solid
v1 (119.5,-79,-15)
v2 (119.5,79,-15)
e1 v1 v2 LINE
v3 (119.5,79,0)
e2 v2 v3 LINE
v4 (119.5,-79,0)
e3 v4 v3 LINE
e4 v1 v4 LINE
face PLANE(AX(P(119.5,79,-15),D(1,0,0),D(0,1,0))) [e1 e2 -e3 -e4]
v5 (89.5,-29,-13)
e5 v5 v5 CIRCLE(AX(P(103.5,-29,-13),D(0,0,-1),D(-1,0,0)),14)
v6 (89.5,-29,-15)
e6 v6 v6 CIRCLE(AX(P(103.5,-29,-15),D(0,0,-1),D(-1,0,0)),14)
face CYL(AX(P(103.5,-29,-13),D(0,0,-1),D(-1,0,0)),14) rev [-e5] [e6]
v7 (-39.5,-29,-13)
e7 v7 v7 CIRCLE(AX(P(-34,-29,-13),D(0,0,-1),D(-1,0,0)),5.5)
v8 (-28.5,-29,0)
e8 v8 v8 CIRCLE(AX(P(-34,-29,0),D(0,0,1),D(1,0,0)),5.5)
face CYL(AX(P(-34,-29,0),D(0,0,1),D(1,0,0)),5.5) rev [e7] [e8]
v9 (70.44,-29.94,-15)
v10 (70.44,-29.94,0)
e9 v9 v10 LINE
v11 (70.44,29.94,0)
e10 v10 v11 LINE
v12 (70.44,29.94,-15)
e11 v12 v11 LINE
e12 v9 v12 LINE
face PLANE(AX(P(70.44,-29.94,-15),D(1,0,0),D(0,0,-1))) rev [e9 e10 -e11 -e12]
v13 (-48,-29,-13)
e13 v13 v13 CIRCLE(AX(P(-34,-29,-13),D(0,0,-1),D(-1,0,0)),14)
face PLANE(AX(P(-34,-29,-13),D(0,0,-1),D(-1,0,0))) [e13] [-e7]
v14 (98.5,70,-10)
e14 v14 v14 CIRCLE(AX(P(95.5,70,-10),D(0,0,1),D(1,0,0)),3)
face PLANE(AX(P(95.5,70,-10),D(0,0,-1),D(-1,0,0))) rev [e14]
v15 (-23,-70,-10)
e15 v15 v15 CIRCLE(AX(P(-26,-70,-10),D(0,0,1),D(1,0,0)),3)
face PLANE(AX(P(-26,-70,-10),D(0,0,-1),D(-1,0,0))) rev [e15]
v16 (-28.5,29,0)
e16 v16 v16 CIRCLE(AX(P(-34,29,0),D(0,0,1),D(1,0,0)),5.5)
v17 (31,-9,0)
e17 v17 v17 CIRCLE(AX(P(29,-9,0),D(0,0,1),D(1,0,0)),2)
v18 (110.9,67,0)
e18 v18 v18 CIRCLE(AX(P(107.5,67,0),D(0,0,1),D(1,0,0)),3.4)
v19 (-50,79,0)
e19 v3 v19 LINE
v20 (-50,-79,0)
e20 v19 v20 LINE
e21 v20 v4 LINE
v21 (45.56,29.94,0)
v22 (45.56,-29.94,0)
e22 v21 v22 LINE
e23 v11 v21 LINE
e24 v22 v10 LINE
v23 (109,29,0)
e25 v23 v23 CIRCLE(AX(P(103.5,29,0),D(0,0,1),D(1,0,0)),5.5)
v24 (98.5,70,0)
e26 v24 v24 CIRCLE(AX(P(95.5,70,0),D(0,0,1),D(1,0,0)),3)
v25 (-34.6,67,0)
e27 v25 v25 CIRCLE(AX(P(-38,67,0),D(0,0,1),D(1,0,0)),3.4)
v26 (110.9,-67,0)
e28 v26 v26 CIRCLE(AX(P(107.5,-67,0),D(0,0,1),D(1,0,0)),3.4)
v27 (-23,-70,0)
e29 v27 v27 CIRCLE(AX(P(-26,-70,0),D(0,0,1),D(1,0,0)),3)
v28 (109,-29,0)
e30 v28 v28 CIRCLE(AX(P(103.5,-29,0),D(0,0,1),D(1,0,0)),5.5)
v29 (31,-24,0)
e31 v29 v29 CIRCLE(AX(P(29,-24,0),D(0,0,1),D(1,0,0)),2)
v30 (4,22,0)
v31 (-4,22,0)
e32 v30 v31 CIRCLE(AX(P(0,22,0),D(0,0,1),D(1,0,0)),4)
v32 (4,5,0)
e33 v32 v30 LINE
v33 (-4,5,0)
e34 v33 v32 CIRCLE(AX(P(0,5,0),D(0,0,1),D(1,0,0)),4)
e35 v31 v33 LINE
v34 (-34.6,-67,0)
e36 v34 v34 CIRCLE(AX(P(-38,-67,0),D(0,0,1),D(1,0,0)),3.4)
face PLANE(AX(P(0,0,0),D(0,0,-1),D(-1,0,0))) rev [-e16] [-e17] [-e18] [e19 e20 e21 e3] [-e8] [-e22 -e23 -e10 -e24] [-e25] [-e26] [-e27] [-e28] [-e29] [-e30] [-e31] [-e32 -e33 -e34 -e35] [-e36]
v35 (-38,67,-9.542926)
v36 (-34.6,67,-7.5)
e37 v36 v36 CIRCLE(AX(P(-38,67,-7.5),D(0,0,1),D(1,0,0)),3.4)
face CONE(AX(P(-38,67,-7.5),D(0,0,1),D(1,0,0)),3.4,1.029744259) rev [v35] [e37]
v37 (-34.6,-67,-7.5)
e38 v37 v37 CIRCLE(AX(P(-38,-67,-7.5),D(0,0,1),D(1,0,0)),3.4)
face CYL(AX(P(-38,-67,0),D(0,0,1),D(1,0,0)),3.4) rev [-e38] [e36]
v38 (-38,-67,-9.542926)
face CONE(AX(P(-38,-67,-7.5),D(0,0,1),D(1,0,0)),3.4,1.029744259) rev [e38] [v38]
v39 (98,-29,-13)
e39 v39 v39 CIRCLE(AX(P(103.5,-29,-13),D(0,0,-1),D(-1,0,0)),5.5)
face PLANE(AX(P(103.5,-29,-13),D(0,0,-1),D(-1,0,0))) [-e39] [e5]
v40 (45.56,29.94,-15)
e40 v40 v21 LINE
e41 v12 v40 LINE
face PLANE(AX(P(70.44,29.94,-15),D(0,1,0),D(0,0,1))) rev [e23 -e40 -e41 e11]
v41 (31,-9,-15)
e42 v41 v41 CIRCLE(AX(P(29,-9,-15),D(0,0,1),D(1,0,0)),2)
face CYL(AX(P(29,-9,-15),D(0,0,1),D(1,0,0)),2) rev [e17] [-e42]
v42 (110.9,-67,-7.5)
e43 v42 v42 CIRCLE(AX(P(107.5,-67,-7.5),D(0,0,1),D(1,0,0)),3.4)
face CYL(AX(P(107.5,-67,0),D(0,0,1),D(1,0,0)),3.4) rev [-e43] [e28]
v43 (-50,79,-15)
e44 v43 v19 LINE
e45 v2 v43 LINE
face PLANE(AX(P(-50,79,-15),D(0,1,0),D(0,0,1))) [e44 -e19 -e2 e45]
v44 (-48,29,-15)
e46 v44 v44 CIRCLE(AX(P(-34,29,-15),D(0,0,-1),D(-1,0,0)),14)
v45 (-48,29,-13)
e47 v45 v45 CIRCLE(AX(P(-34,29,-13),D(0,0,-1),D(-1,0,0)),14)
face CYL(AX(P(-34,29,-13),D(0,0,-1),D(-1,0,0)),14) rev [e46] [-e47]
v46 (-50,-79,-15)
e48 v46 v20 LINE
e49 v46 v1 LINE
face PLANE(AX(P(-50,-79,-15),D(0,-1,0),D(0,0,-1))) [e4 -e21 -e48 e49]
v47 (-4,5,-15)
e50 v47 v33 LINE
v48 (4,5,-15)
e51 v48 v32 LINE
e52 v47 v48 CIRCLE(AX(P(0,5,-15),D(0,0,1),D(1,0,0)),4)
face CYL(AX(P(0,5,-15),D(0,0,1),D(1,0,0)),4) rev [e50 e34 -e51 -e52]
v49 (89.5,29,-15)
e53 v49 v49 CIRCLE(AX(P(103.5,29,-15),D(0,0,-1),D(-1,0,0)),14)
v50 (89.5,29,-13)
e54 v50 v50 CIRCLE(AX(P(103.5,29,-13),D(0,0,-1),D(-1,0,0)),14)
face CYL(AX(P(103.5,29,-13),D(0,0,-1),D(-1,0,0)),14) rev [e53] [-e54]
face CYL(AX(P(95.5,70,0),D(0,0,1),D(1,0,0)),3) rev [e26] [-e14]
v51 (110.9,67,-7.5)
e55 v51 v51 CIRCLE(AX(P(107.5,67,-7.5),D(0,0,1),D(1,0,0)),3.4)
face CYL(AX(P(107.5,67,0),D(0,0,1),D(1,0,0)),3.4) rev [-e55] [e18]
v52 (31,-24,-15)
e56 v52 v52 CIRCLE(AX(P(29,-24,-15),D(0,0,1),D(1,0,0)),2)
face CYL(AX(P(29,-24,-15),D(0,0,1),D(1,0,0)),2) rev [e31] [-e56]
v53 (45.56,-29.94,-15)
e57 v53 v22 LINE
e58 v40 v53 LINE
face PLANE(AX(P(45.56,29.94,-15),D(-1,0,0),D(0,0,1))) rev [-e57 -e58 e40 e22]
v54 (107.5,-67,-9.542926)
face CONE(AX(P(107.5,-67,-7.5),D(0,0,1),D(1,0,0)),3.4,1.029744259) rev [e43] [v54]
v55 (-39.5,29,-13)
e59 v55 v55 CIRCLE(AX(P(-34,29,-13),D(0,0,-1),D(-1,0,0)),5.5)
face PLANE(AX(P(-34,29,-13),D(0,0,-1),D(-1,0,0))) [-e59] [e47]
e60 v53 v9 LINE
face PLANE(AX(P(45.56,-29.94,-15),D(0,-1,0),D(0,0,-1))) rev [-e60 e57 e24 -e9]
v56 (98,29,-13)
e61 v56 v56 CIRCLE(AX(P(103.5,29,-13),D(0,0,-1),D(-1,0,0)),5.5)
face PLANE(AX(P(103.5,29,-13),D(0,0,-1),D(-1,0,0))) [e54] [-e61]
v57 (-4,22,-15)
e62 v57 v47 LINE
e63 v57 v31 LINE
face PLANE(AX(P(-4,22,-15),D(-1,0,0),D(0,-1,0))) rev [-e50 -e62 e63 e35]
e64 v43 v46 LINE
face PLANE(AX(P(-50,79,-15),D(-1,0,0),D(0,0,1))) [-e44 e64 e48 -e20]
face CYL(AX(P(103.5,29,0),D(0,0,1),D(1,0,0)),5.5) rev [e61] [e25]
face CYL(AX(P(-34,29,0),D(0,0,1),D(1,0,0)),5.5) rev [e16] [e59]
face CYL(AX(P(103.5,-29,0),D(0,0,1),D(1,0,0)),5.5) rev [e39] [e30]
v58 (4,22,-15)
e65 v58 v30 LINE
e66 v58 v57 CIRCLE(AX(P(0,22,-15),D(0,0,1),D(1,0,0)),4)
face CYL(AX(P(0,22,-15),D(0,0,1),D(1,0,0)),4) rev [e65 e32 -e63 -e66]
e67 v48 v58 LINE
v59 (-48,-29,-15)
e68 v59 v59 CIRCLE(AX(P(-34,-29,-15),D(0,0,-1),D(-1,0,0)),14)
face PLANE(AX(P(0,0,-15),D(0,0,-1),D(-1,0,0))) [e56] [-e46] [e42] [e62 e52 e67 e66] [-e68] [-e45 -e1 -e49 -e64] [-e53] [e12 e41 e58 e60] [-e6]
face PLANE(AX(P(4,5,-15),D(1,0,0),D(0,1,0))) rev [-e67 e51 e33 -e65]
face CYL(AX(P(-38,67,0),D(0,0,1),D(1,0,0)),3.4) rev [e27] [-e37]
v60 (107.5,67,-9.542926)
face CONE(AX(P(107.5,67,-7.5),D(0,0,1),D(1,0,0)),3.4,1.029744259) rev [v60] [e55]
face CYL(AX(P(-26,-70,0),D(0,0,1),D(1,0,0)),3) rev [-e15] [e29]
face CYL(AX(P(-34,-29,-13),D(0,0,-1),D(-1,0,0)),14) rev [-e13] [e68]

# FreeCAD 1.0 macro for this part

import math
import FreeCAD as App
import Part
import Sketcher
Q = App.Units.Quantity


def add_polygon(sketch, points):
    """Adds a closed chain of lines whose ends are joined by coincident constraints."""
    first, n = sketch.GeometryCount, len(points)
    for a, b in zip(points, points[1:] + points[:1]):
        sketch.addGeometry(Part.LineSegment(App.Vector(*a, 0), App.Vector(*b, 0)), False)
    for i in range(n):
        sketch.addConstraint(Sketcher.Constraint("Coincident", first + i, 2, first + (i + 1) % n, 1))

doc = App.newDocument("Part")
body = doc.addObject("PartDesign::Body", "Body")

# Sketch on XY plane
sketch1 = body.newObject("Sketcher::SketchObject", "Sketch")
sketch1.AttachmentSupport = (doc.getObject("XY_Plane"), [""])
sketch1.MapMode = "FlatFace"
add_polygon(sketch1, [(-50, 79), (-50, -79), (119.5, -79), (119.5, 79)])  # lines 0-3
sketch1.addGeometry(Part.Circle(App.Vector(29, -24, 0), App.Vector(0, 0, 1), 2), False)  # 4
sketch1.addGeometry(Part.Circle(App.Vector(29, -9, 0), App.Vector(0, 0, 1), 2), False)  # 5
add_polygon(sketch1, [(70.4, -29.9), (45.6, -29.9), (45.6, 29.9), (70.4, 29.9)])  # lines 6-9
sketch1.addGeometry(Part.LineSegment(App.Vector(-4, 5, 0), App.Vector(-4, 22, 0)), False)  # 10
sketch1.addGeometry(Part.ArcOfCircle(Part.Circle(App.Vector(0, 22, 0), App.Vector(0, 0, 1), 4), math.radians(0), math.radians(180)), False)  # 11
sketch1.addGeometry(Part.LineSegment(App.Vector(4, 22, 0), App.Vector(4, 5, 0)), False)  # 12
sketch1.addGeometry(Part.ArcOfCircle(Part.Circle(App.Vector(0, 5, 0), App.Vector(0, 0, 1), 4), math.radians(180), math.radians(360)), False)  # 13
sketch1.addConstraint([
    Sketcher.Constraint("Tangent", 10, 2, 11, 2),
    Sketcher.Constraint("Tangent", 11, 1, 12, 1),
    Sketcher.Constraint("Tangent", 12, 2, 13, 2),
    Sketcher.Constraint("Tangent", 13, 1, 10, 1),
    Sketcher.Constraint("Vertical", 0),
    Sketcher.Constraint("Horizontal", 1),
    Sketcher.Constraint("Vertical", 2),
    Sketcher.Constraint("Horizontal", 3),
    Sketcher.Constraint("Horizontal", 6),
    Sketcher.Constraint("Vertical", 7),
    Sketcher.Constraint("Horizontal", 8),
    Sketcher.Constraint("Vertical", 9),
    Sketcher.Constraint("Vertical", 10),
    Sketcher.Constraint("Vertical", 12),
    Sketcher.Constraint("Equal", 4, 5),
    Sketcher.Constraint("PointOnObject", 11, 3, -2),
    Sketcher.Constraint("Vertical", 4, 3, 5, 3),
    Sketcher.Constraint("Diameter", 4, Q("4 mm")),
    Sketcher.Constraint("Radius", 11, Q("4 mm")),
    Sketcher.Constraint("DistanceY", 0, 2, 0, 1, Q("158 mm")),
    Sketcher.Constraint("DistanceY", 10, 1, 10, 2, Q("17 mm")),
    Sketcher.Constraint("DistanceX", 1, 1, 1, 2, Q("169.5 mm")),
    Sketcher.Constraint("DistanceX", -1, 1, 4, 3, Q("29 mm")),
    Sketcher.Constraint("DistanceY", 4, 3, -1, 1, Q("24 mm")),
    Sketcher.Constraint("DistanceY", 5, 3, -1, 1, Q("9 mm")),
    Sketcher.Constraint("DistanceY", -1, 1, 11, 3, Q("22 mm")),
    Sketcher.Constraint("DistanceX", 0, 2, -1, 1, Q("50 mm")),
    Sketcher.Constraint("DistanceY", 0, 2, -1, 1, Q("79 mm")),
    Sketcher.Constraint("DistanceX", 6, 2, 6, 1, Q("24.88 mm")),
    Sketcher.Constraint("DistanceY", 7, 1, 7, 2, Q("59.88 mm")),
    Sketcher.Constraint("DistanceX", -1, 1, 6, 2, Q("45.56 mm")),
    Sketcher.Constraint("DistanceY", 6, 2, -1, 1, Q("29.94 mm")),
])
pad1 = body.newObject("PartDesign::Pad", "Pad")
pad1.Profile = sketch1
pad1.Length = 15
pad1.Reversed = True

# Sketch on XY plane
sketch2 = body.newObject("Sketcher::SketchObject", "Sketch001")
sketch2.AttachmentSupport = (doc.getObject("XY_Plane"), [""])
sketch2.MapMode = "FlatFace"
sketch2.addGeometry([
    Part.Circle(App.Vector(107.5, -67, 0), App.Vector(0, 0, 1), 3.4),
    Part.Circle(App.Vector(107.5, 67, 0), App.Vector(0, 0, 1), 3.4),
    Part.Circle(App.Vector(-38, 67, 0), App.Vector(0, 0, 1), 3.4),
    Part.Circle(App.Vector(-38, -67, 0), App.Vector(0, 0, 1), 3.4),
], False)
sketch2.addConstraint([
    Sketcher.Constraint("Equal", 0, 1),
    Sketcher.Constraint("Equal", 1, 2),
    Sketcher.Constraint("Equal", 2, 3),
    Sketcher.Constraint("Symmetric", 0, 3, 1, 3, -1),
    Sketcher.Constraint("Symmetric", 2, 3, 3, 3, -1),
    Sketcher.Constraint("Horizontal", 1, 3, 2, 3),
    Sketcher.Constraint("Diameter", 0, Q("6.8 mm")),
    Sketcher.Constraint("DistanceY", 0, 3, -1, 1, Q("67 mm")),
    Sketcher.Constraint("DistanceX", 2, 3, -1, 1, Q("38 mm")),
    Sketcher.Constraint("DistanceX", -1, 1, 0, 3, Q("107.5 mm")),
])
doc.recompute()
hole = body.newObject("PartDesign::Hole", "Hole")
hole.Profile = sketch2
hole.ThreadType = "None"
hole.Diameter = 6.8
hole.DepthType = "Dimension"
hole.Depth = 7.5
hole.DrillPoint = "Angled"
hole.DrillPointAngle = 118

# Sketch on XY plane
sketch3 = body.newObject("Sketcher::SketchObject", "Sketch002")
sketch3.AttachmentSupport = (doc.getObject("XY_Plane"), [""])
sketch3.MapMode = "FlatFace"
sketch3.addGeometry([
    Part.Circle(App.Vector(95.5, 70, 0), App.Vector(0, 0, 1), 3),
    Part.Circle(App.Vector(-26, -70, 0), App.Vector(0, 0, 1), 3),
], False)
sketch3.addConstraint([
    Sketcher.Constraint("Equal", 0, 1),
    Sketcher.Constraint("Diameter", 0, Q("6 mm")),
    Sketcher.Constraint("DistanceY", -1, 1, 0, 3, Q("70 mm")),
    Sketcher.Constraint("DistanceX", 1, 3, -1, 1, Q("26 mm")),
    Sketcher.Constraint("DistanceY", 1, 3, -1, 1, Q("70 mm")),
    Sketcher.Constraint("DistanceX", -1, 1, 0, 3, Q("95.5 mm")),
])
doc.recompute()
hole2 = body.newObject("PartDesign::Hole", "Hole001")
hole2.Profile = sketch3
hole2.ThreadType = "None"
hole2.Diameter = 6
hole2.DepthType = "Dimension"
hole2.Depth = 10
hole2.DrillPoint = "Flat"

# Sketch on XY plane
sketch4 = body.newObject("Sketcher::SketchObject", "Sketch003")
sketch4.AttachmentSupport = (doc.getObject("XY_Plane"), [""])
sketch4.MapMode = "FlatFace"
sketch4.AttachmentOffset = App.Placement(App.Vector(0, 0, -15), App.Rotation())
sketch4.addGeometry([
    Part.Circle(App.Vector(104, 29, 0), App.Vector(0, 0, 1), 14),
    Part.Circle(App.Vector(-34, 29, 0), App.Vector(0, 0, 1), 14),
    Part.Circle(App.Vector(-34, -29, 0), App.Vector(0, 0, 1), 14),
    Part.Circle(App.Vector(104, -29, 0), App.Vector(0, 0, 1), 14),
], False)
sketch4.addConstraint([
    Sketcher.Constraint("Equal", 0, 1),
    Sketcher.Constraint("Equal", 1, 2),
    Sketcher.Constraint("Equal", 2, 3),
    Sketcher.Constraint("Symmetric", 1, 3, 2, 3, -1),
    Sketcher.Constraint("Symmetric", 0, 3, 3, 3, -1),
    Sketcher.Constraint("Horizontal", 0, 3, 1, 3),
    Sketcher.Constraint("Diameter", 0, Q("28 mm")),
    Sketcher.Constraint("DistanceY", -1, 1, 0, 3, Q("29 mm")),
    Sketcher.Constraint("DistanceX", 1, 3, -1, 1, Q("34 mm")),
    Sketcher.Constraint("DistanceX", -1, 1, 0, 3, Q("103.5 mm")),
])
pocket1 = body.newObject("PartDesign::Pocket", "Pocket")
pocket1.Profile = sketch4
pocket1.Length = 2
pocket1.Reversed = True

# Sketch on XY plane
sketch5 = body.newObject("Sketcher::SketchObject", "Sketch004")
sketch5.AttachmentSupport = (doc.getObject("XY_Plane"), [""])
sketch5.MapMode = "FlatFace"
sketch5.addGeometry([
    Part.Circle(App.Vector(-34, 29, 0), App.Vector(0, 0, 1), 6),
    Part.Circle(App.Vector(-34, -29, 0), App.Vector(0, 0, 1), 6),
    Part.Circle(App.Vector(104, 29, 0), App.Vector(0, 0, 1), 6),
    Part.Circle(App.Vector(104, -29, 0), App.Vector(0, 0, 1), 6),
], False)
sketch5.addConstraint([
    Sketcher.Constraint("Equal", 0, 1),
    Sketcher.Constraint("Equal", 1, 2),
    Sketcher.Constraint("Equal", 2, 3),
    Sketcher.Constraint("Symmetric", 0, 3, 1, 3, -1),
    Sketcher.Constraint("Symmetric", 2, 3, 3, 3, -1),
    Sketcher.Constraint("Horizontal", 0, 3, 2, 3),
    Sketcher.Constraint("Diameter", 0, Q("11 mm")),
    Sketcher.Constraint("DistanceX", 0, 3, -1, 1, Q("34 mm")),
    Sketcher.Constraint("DistanceY", -1, 1, 0, 3, Q("29 mm")),
    Sketcher.Constraint("DistanceX", -1, 1, 2, 3, Q("103.5 mm")),
])
doc.recompute()
hole3 = body.newObject("PartDesign::Hole", "Hole002")
hole3.Profile = sketch5
hole3.ThreadType = "None"
hole3.Diameter = 11
hole3.DepthType = "ThroughAll"

doc.recompute()
